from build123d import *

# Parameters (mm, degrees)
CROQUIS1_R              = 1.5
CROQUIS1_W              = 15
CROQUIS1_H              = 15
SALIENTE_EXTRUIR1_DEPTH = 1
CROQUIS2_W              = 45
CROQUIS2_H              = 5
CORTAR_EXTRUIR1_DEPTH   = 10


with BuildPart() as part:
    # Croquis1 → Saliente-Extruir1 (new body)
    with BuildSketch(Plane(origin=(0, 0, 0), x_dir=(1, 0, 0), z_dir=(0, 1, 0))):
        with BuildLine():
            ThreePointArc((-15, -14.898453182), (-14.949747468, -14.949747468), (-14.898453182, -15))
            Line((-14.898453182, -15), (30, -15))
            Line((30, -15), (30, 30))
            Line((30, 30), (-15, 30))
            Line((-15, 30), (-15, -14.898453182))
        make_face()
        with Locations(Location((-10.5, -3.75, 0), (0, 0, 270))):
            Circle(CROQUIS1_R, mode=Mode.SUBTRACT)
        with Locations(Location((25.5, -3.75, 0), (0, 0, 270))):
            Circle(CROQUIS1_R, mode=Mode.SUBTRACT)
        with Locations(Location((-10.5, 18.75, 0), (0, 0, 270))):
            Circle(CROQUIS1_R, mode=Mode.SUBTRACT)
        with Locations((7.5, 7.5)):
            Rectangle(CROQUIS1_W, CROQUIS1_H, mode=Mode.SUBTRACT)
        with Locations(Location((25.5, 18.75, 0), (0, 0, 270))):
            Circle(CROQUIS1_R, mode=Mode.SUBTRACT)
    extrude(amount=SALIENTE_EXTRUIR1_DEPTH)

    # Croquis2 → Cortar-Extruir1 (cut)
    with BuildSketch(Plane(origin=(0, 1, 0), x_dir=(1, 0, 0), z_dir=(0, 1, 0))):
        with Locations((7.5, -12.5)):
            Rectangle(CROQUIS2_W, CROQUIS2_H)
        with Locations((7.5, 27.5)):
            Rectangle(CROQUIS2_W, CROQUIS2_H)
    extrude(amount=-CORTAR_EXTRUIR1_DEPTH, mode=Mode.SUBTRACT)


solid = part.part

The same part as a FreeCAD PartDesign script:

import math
import FreeCAD as App
import Part
import Sketcher
from FreeCAD import Vector
Q = App.Units.Quantity


def add_polygon(sketch, points):
    """Adds a closed chain of lines whose ends are joined by coincident constraints."""
    first, n = sketch.GeometryCount, len(points)
    for a, b in zip(points, points[1:] + points[:1]):
        sketch.addGeometry(Part.LineSegment(App.Vector(*a, 0), App.Vector(*b, 0)), False)
    for i in range(n):
        sketch.addConstraint(Sketcher.Constraint("Coincident", first + i, 2, first + (i + 1) % n, 1))

doc = App.newDocument("Part")
body = doc.addObject("PartDesign::Body", "Body")

sketch1 = body.newObject("Sketcher::SketchObject", "Sketch")
sketch1.AttachmentSupport = (doc.getObject("XZ_Plane"), [""])
sketch1.MapMode = "FlatFace"
sketch1.addGeometry(Part.ArcOfCircle(Part.Circle(Vector(-12.47, 12.47, 0), Vector(0, 0, 1), 3.5), math.radians(133.82), math.radians(136.18)), False)
sketch1.addGeometry(Part.LineSegment(Vector(-14.9, 15, 0), Vector(30, 15, 0)), False)
sketch1.addGeometry(Part.LineSegment(Vector(30, 15, 0), Vector(30, -30, 0)), False)
sketch1.addGeometry(Part.LineSegment(Vector(30, -30, 0), Vector(-15, -30, 0)), False)
sketch1.addGeometry(Part.LineSegment(Vector(-15, -30, 0), Vector(-15, 14.9, 0)), False)
sketch1.addGeometry(Part.Circle(Vector(-10.5, 3.75, 0), Vector(0, 0, 1), 1.5), False)
sketch1.addGeometry(Part.Circle(Vector(25.5, 3.75, 0), Vector(0, 0, 1), 1.5), False)
sketch1.addGeometry(Part.Circle(Vector(-10.5, -18.75, 0), Vector(0, 0, 1), 1.5), False)
add_polygon(sketch1, [(15, 0), (0, 0), (0, -15), (15, -15)])
sketch1.addGeometry(Part.Circle(Vector(25.5, -18.75, 0), Vector(0, 0, 1), 1.5), False)
sketch1.addConstraint([
    Sketcher.Constraint("Coincident", 0, 1, 1, 1),
    Sketcher.Constraint("Coincident", 1, 2, 2, 1),
    Sketcher.Constraint("Coincident", 2, 2, 3, 1),
    Sketcher.Constraint("Coincident", 3, 2, 4, 1),
    Sketcher.Constraint("Coincident", 4, 2, 0, 2),
    Sketcher.Constraint("Horizontal", 1),
    Sketcher.Constraint("Vertical", 2),
    Sketcher.Constraint("Horizontal", 3),
    Sketcher.Constraint("Vertical", 4),
    Sketcher.Constraint("Horizontal", 8),
    Sketcher.Constraint("Vertical", 9),
    Sketcher.Constraint("Horizontal", 10),
    Sketcher.Constraint("Vertical", 11),
    Sketcher.Constraint("Coincident", 8, 2, -1, 1),
    Sketcher.Constraint("Equal", 5, 6),
    Sketcher.Constraint("Equal", 6, 7),
    Sketcher.Constraint("Equal", 7, 12),
    Sketcher.Constraint("Horizontal", 5, 3, 6, 3),
    Sketcher.Constraint("Horizontal", 7, 3, 12, 3),
    Sketcher.Constraint("Vertical", 5, 3, 7, 3),
    Sketcher.Constraint("Vertical", 6, 3, 12, 3),
    Sketcher.Constraint("Equal", 3, 2),
    Sketcher.Constraint("Equal", 1, 4),
    Sketcher.Constraint("Equal", 10, 9),
    Sketcher.Constraint("Diameter", 5, Q("3 mm")),
    Sketcher.Constraint("Radius", 0, Q("3.500001 mm")),
    Sketcher.Constraint("DistanceX", 3, 2, 3, 1, Q("45 mm")),
    Sketcher.Constraint("DistanceX", 8, 2, 8, 1, Q("15 mm")),
    Sketcher.Constraint("DistanceY", -1, 1, 0, 1, Q("15 mm")),
    Sketcher.Constraint("DistanceX", -1, 1, 1, 2, Q("30 mm")),
    Sketcher.Constraint("DistanceX", 5, 3, 6, 3, Q("36 mm")),
    Sketcher.Constraint("DistanceX", 5, 3, -1, 1, Q("10.5 mm")),
    Sketcher.Constraint("DistanceY", 7, 3, 5, 3, Q("22.5 mm")),
    Sketcher.Constraint("DistanceY", -1, 1, 5, 3, Q("3.75 mm")),
    Sketcher.Constraint("DistanceX", 1, 1, 1, 2, Q("44.898453 mm")),
])
pad1 = body.newObject("PartDesign::Pad", "Pad")
pad1.Profile = sketch1
pad1.Length = 1
pad1.Reversed = True

sketch2 = body.newObject("Sketcher::SketchObject", "Sketch001")
sketch2.AttachmentSupport = (doc.getObject("XZ_Plane"), [""])
sketch2.MapMode = "FlatFace"
sketch2.AttachmentOffset = App.Placement(Vector(0, 0, -1), App.Rotation())
add_polygon(sketch2, [(-15, 10), (-15, 15), (30, 15), (30, 10)])
add_polygon(sketch2, [(-15, -30), (-15, -25), (30, -25), (30, -30)])
sketch2.addConstraint([
    Sketcher.Constraint("Vertical", 0),
    Sketcher.Constraint("Horizontal", 1),
    Sketcher.Constraint("Vertical", 2),
    Sketcher.Constraint("Horizontal", 3),
    Sketcher.Constraint("Vertical", 4),
    Sketcher.Constraint("Horizontal", 5),
    Sketcher.Constraint("Vertical", 6),
    Sketcher.Constraint("Horizontal", 7),
    Sketcher.Constraint("Vertical", 3, 2, 4, 2),
    Sketcher.Constraint("Vertical", 2, 2, 5, 2),
    Sketcher.Constraint("Equal", 2, 4),
    Sketcher.Constraint("DistanceX", 1, 1, 1, 2, Q("45 mm")),
    Sketcher.Constraint("DistanceY", 0, 1, 0, 2, Q("5 mm")),
    Sketcher.Constraint("DistanceX", 0, 2, -1, 1, Q("15 mm")),
    Sketcher.Constraint("DistanceY", -1, 1, 0, 2, Q("15 mm")),
    Sketcher.Constraint("DistanceY", 4, 2, -1, 1, Q("25 mm")),
])
pocket1 = body.newObject("PartDesign::Pocket", "Pocket")
pocket1.Profile = sketch2
pocket1.Length = 10
pocket1.Reversed = True

doc.recompute()
